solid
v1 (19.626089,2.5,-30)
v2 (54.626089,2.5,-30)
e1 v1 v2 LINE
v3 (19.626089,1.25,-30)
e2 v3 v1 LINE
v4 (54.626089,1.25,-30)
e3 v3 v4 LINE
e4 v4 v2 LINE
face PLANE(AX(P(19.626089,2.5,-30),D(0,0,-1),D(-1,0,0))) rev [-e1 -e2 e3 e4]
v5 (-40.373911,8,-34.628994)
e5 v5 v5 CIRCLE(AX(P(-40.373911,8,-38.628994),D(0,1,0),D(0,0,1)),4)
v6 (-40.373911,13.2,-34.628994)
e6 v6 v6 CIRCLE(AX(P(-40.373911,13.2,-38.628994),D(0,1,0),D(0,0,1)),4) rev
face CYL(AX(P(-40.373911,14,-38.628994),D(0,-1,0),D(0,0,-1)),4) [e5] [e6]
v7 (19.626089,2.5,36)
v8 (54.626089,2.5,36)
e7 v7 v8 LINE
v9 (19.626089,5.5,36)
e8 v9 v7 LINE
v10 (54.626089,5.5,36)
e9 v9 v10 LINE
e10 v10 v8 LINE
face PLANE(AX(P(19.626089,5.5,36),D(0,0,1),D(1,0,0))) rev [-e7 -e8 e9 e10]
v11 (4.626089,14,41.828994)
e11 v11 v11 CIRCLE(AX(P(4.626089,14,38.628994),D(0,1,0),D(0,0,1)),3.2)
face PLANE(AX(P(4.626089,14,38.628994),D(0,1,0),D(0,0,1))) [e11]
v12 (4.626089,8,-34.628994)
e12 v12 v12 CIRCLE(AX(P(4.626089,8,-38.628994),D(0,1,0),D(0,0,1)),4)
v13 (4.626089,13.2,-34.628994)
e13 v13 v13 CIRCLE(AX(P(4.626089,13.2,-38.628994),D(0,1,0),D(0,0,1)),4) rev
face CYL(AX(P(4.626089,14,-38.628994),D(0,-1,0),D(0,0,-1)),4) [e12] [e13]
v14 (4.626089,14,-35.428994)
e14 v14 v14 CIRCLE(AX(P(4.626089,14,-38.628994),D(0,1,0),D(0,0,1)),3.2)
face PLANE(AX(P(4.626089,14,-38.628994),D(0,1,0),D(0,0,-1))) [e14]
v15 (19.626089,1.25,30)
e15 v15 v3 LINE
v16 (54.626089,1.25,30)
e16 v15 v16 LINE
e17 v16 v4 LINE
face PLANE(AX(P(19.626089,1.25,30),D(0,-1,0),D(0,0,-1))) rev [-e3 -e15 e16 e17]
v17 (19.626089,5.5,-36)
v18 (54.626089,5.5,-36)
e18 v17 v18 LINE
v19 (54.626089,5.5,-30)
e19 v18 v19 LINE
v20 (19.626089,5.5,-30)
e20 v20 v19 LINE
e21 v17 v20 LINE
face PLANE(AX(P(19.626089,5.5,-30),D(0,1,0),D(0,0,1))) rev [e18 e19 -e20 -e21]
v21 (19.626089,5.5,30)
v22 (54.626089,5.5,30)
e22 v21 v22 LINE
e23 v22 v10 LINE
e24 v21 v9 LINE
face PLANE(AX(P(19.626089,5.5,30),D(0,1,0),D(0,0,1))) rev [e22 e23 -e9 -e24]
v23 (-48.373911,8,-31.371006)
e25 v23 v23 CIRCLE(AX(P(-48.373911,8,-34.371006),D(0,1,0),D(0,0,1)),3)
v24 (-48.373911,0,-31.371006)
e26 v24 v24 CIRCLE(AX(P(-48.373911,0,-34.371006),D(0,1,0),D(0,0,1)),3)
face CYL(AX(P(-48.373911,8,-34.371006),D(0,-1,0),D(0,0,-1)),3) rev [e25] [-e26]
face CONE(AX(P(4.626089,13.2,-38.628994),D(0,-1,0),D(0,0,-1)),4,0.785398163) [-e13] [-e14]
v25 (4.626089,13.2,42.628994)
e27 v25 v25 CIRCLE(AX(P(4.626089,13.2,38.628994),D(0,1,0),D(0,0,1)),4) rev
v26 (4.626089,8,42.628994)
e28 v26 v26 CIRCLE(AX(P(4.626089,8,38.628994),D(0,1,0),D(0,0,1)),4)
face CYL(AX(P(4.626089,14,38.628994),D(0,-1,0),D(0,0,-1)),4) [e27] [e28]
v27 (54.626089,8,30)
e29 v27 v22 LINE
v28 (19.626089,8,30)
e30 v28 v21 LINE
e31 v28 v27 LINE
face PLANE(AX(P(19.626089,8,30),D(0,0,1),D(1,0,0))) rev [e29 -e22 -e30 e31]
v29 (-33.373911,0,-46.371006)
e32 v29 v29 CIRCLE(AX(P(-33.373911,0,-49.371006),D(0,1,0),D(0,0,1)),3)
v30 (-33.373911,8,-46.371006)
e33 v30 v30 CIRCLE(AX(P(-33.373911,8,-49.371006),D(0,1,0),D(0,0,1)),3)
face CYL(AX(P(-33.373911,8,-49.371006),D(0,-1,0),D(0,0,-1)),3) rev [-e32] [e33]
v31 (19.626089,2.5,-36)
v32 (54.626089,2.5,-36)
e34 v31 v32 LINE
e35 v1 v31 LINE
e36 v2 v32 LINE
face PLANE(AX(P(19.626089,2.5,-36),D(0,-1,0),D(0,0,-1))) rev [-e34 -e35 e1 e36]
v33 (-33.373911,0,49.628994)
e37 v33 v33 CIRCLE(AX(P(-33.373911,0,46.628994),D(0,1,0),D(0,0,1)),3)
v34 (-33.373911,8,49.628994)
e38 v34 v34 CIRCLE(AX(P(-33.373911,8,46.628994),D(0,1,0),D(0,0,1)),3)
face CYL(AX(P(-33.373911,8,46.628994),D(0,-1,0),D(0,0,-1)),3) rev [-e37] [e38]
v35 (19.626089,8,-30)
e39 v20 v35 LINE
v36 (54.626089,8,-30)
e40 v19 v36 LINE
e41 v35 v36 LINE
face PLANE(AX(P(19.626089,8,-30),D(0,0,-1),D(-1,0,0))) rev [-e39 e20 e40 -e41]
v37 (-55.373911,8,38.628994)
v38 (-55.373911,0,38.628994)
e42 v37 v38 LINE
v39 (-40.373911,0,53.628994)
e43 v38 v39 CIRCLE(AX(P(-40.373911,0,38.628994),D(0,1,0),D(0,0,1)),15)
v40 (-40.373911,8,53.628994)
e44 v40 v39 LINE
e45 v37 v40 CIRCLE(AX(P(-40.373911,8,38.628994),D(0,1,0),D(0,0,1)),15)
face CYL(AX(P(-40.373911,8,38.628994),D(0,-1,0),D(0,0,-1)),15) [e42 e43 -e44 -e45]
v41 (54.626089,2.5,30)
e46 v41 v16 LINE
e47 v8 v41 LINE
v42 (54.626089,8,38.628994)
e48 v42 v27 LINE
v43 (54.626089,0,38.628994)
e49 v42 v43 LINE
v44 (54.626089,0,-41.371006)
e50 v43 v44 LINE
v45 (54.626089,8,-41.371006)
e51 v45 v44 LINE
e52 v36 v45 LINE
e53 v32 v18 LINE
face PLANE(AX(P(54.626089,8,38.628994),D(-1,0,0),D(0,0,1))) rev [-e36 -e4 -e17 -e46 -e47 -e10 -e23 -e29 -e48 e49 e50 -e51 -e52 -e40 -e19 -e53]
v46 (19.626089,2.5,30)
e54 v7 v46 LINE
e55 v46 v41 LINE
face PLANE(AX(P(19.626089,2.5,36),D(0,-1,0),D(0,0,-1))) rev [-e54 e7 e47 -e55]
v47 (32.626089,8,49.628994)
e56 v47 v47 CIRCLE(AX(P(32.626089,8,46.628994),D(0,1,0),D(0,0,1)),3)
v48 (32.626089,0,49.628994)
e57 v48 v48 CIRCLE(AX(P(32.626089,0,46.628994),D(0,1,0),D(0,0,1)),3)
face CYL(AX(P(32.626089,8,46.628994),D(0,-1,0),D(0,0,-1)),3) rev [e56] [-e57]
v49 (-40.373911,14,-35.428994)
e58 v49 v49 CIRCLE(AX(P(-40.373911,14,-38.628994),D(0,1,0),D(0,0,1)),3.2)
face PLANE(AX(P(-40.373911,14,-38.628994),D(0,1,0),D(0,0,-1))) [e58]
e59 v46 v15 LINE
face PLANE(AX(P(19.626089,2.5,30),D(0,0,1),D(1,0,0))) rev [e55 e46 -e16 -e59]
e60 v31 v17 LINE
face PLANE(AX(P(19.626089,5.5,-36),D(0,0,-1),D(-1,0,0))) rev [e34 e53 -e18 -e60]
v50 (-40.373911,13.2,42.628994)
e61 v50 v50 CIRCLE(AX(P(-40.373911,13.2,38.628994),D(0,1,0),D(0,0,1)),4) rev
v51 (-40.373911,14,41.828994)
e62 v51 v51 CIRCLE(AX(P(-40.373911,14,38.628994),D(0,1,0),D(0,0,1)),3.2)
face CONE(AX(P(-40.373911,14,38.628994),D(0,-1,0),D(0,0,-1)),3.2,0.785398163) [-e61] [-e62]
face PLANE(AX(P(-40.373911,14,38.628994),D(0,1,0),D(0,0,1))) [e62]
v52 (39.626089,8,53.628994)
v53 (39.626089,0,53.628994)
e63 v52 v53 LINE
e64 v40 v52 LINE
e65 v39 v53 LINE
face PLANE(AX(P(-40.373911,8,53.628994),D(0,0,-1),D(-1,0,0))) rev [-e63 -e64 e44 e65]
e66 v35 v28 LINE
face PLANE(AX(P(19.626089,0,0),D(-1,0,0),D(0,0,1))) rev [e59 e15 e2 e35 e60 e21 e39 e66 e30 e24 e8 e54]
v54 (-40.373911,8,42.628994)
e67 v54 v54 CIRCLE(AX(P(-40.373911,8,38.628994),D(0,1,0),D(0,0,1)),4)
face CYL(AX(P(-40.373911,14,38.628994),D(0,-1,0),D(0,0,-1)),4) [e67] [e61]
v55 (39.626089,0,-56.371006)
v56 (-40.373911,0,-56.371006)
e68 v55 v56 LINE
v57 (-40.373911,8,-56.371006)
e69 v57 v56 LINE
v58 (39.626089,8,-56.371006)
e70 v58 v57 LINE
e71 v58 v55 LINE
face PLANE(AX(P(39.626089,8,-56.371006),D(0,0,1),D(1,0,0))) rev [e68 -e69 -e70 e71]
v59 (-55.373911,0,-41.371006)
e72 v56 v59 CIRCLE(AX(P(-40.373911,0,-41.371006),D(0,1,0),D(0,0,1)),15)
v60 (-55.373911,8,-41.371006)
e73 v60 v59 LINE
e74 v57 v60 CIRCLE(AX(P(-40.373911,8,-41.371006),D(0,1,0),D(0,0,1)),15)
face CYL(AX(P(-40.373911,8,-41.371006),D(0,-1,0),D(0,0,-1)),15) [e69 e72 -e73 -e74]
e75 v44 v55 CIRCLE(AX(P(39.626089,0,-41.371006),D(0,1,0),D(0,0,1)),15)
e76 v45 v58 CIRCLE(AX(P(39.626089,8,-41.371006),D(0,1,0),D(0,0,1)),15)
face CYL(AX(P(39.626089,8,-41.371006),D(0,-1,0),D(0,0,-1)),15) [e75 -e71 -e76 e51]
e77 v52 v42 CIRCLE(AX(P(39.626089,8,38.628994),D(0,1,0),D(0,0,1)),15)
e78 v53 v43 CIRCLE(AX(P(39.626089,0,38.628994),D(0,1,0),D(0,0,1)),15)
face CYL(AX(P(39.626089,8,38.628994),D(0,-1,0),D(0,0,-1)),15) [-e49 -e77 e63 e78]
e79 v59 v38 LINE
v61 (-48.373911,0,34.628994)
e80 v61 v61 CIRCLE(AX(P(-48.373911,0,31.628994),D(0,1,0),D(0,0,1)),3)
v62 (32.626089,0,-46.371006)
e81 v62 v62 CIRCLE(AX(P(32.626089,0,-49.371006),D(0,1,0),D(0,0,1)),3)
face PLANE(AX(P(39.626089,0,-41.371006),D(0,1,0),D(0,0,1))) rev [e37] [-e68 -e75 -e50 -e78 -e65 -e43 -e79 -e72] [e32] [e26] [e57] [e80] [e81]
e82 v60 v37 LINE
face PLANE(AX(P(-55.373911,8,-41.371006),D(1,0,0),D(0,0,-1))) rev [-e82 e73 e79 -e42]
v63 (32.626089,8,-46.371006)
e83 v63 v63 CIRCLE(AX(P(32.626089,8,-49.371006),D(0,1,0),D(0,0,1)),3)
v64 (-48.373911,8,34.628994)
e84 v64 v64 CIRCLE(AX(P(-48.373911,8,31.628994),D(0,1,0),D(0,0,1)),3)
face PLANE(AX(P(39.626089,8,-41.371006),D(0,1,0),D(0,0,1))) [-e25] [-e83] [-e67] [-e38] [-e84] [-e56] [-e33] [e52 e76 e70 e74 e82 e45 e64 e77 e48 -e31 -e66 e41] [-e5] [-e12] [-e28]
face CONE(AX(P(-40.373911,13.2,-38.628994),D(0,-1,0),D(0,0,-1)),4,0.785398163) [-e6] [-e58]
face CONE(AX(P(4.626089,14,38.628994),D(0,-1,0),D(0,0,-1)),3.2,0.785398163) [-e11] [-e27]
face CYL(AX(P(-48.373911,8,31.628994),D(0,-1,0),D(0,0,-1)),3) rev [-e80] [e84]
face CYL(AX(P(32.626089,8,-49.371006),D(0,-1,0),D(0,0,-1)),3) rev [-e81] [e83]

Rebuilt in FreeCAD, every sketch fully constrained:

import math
import FreeCAD as App
import Part
import Sketcher
from FreeCAD import Vector
Q = App.Units.Quantity


def edges_at(feature, points):
    """Names of the edges that pass closest to the given points."""
    edges = feature.Shape.Edges
    near = lambda p: min(range(len(edges)), key=lambda i: edges[i].distToShape(Part.Vertex(*p))[0])
    return sorted({f"Edge{near(p) + 1}" for p in points})

doc = App.newDocument("Part")
params = doc.addObject("Spreadsheet::Sheet", "Params")
for row, (alias, value) in enumerate([
    ("sketch1_diameter", "6 mm"),
    ("sketch1_radius", "15 mm"),
    ("sketch1_width", "80 mm"),
    ("pad1_length", "8 mm"),
    ("sketch2_width", "3 mm"),
    ("sketch2_height", "6 mm"),
    ("sketch2_height2", "60 mm"),
    ("sketch2_width2", "2.5 mm"),
    ("sketch2_width3", "1.25 mm"),
    ("pocket1_length", "35 mm"),
    ("sketch3_diameter", "8 mm"),
    ("pad2_length", "6 mm"),
    ("chamfer_size", "0.8 mm"),
    ("chamfer2_size", "0.8 mm"),
], start=1):
    params.set(f"A{row}", alias)
    params.set(f"B{row}", "=" + value)
    params.setAlias(f"B{row}", alias)

body = doc.addObject("PartDesign::Body", "Body")

# Sketch on XZ plane
sketch1 = body.newObject("Sketcher::SketchObject", "Sketch")
sketch1.AttachmentSupport = (doc.getObject("XZ_Plane"), [""])
sketch1.MapMode = "FlatFace"
sketch1.addGeometry([
    Part.LineSegment(Vector(39.6, -56.4, 0), Vector(-40.4, -56.4, 0)),  # 0
    Part.ArcOfCircle(Part.Circle(Vector(-40.4, -41.4, 0), Vector(0, 0, 1), 15), math.radians(-180), math.radians(-90)),  # 1
    Part.LineSegment(Vector(-55.4, -41.4, 0), Vector(-55.4, 38.6, 0)),  # 2
    Part.ArcOfCircle(Part.Circle(Vector(-40.4, 38.6, 0), Vector(0, 0, 1), 15), math.radians(90), math.radians(180)),  # 3
    Part.LineSegment(Vector(-40.4, 53.6, 0), Vector(39.6, 53.6, 0)),  # 4
    Part.ArcOfCircle(Part.Circle(Vector(39.6, 38.6, 0), Vector(0, 0, 1), 15), math.radians(0), math.radians(90)),  # 5
    Part.LineSegment(Vector(54.6, 38.6, 0), Vector(54.6, -41.4, 0)),  # 6
    Part.ArcOfCircle(Part.Circle(Vector(39.6, -41.4, 0), Vector(0, 0, 1), 15), math.radians(-90), math.radians(0)),  # 7
    Part.Circle(Vector(-33.4, 46.6, 0), Vector(0, 0, 1), 3),  # 8
    Part.Circle(Vector(-48.4, 31.6, 0), Vector(0, 0, 1), 3),  # 9
    Part.Circle(Vector(32.6, 46.6, 0), Vector(0, 0, 1), 3),  # 10
    Part.Circle(Vector(-48.4, -34.4, 0), Vector(0, 0, 1), 3),  # 11
    Part.Circle(Vector(-33.4, -49.4, 0), Vector(0, 0, 1), 3),  # 12
    Part.Circle(Vector(32.6, -49.4, 0), Vector(0, 0, 1), 3),  # 13
], False)
sketch1.addConstraint([
    Sketcher.Constraint("Tangent", 0, 2, 1, 2),
    Sketcher.Constraint("Tangent", 1, 1, 2, 1),
    Sketcher.Constraint("Tangent", 2, 2, 3, 2),
    Sketcher.Constraint("Tangent", 3, 1, 4, 1),
    Sketcher.Constraint("Tangent", 4, 2, 5, 2),
    Sketcher.Constraint("Tangent", 5, 1, 6, 1),
    Sketcher.Constraint("Tangent", 6, 2, 7, 2),
    Sketcher.Constraint("Tangent", 7, 1, 0, 1),
    Sketcher.Constraint("Horizontal", 0),
    Sketcher.Constraint("Vertical", 2),
    Sketcher.Constraint("Horizontal", 4),
    Sketcher.Constraint("Vertical", 6),
    Sketcher.Constraint("Equal", 1, 3),
    Sketcher.Constraint("Equal", 3, 5),
    Sketcher.Constraint("Equal", 5, 7),
    Sketcher.Constraint("Equal", 8, 9),
    Sketcher.Constraint("Equal", 9, 10),
    Sketcher.Constraint("Equal", 10, 11),
    Sketcher.Constraint("Equal", 11, 12),
    Sketcher.Constraint("Equal", 12, 13),
    Sketcher.Constraint("Horizontal", 8, 3, 10, 3),
    Sketcher.Constraint("Horizontal", 12, 3, 13, 3),
    Sketcher.Constraint("Vertical", 9, 3, 11, 3),
    Sketcher.Constraint("Vertical", 8, 3, 12, 3),
    Sketcher.Constraint("Vertical", 10, 3, 13, 3),
    Sketcher.Constraint("Equal", 4, 2),
    Sketcher.Constraint("Diameter", 8, Q("6 mm")),
    Sketcher.Constraint("Radius", 1, Q("15 mm")),
    Sketcher.Constraint("DistanceX", 0, 2, 0, 1, Q("80 mm")),
    Sketcher.Constraint("DistanceX", 3, 3, 8, 3, Q("7 mm")),
    Sketcher.Constraint("DistanceY", 3, 3, 8, 3, Q("8 mm")),
    Sketcher.Constraint("DistanceX", 9, 3, 3, 3, Q("8 mm")),
    Sketcher.Constraint("DistanceY", 9, 3, 3, 3, Q("7 mm")),
    Sketcher.Constraint("DistanceX", 10, 3, 5, 3, Q("7 mm")),
    Sketcher.Constraint("DistanceY", 1, 3, 11, 3, Q("7 mm")),
    Sketcher.Constraint("DistanceY", 12, 3, 1, 3, Q("8 mm")),
    Sketcher.Constraint("DistanceX", 1, 3, -1, 1, Q("40.373911 mm")),
    Sketcher.Constraint("DistanceY", 1, 3, -1, 1, Q("41.371006 mm")),
])
sketch1.setExpression("Constraints[26]", "Params.sketch1_diameter")
sketch1.setExpression("Constraints[27]", "Params.sketch1_radius")
sketch1.setExpression("Constraints[28]", "Params.sketch1_width")
pad1 = body.newObject("PartDesign::Pad", "Pad")
pad1.Profile = sketch1
pad1.setExpression("Length", "Params.pad1_length")
pad1.Reversed = True

# Sketch on YZ plane
sketch2 = body.newObject("Sketcher::SketchObject", "Sketch001")
sketch2.AttachmentSupport = (doc.getObject("YZ_Plane"), [""])
sketch2.MapMode = "FlatFace"
sketch2.AttachmentOffset = App.Placement(Vector(0, 0, 54.626089), App.Rotation())
sketch2.addGeometry([
    Part.LineSegment(Vector(8, 30, 0), Vector(5.5, 30, 0)),  # 0
    Part.LineSegment(Vector(5.5, 30, 0), Vector(5.5, 36, 0)),  # 1
    Part.LineSegment(Vector(5.5, 36, 0), Vector(2.5, 36, 0)),  # 2
    Part.LineSegment(Vector(2.5, 36, 0), Vector(2.5, 30, 0)),  # 3
    Part.LineSegment(Vector(2.5, 30, 0), Vector(1.2, 30, 0)),  # 4
    Part.LineSegment(Vector(1.2, 30, 0), Vector(1.2, -30, 0)),  # 5
    Part.LineSegment(Vector(1.2, -30, 0), Vector(2.5, -30, 0)),  # 6
    Part.LineSegment(Vector(2.5, -30, 0), Vector(2.5, -36, 0)),  # 7
    Part.LineSegment(Vector(2.5, -36, 0), Vector(5.5, -36, 0)),  # 8
    Part.LineSegment(Vector(5.5, -36, 0), Vector(5.5, -30, 0)),  # 9
    Part.LineSegment(Vector(5.5, -30, 0), Vector(8, -30, 0)),  # 10
    Part.LineSegment(Vector(8, -30, 0), Vector(8, 30, 0)),  # 11
], False)
sketch2.addConstraint([
    Sketcher.Constraint("Coincident", 0, 2, 1, 1),
    Sketcher.Constraint("Coincident", 1, 2, 2, 1),
    Sketcher.Constraint("Coincident", 2, 2, 3, 1),
    Sketcher.Constraint("Coincident", 3, 2, 4, 1),
    Sketcher.Constraint("Coincident", 4, 2, 5, 1),
    Sketcher.Constraint("Coincident", 5, 2, 6, 1),
    Sketcher.Constraint("Coincident", 6, 2, 7, 1),
    Sketcher.Constraint("Coincident", 7, 2, 8, 1),
    Sketcher.Constraint("Coincident", 8, 2, 9, 1),
    Sketcher.Constraint("Coincident", 9, 2, 10, 1),
    Sketcher.Constraint("Coincident", 10, 2, 11, 1),
    Sketcher.Constraint("Coincident", 11, 2, 0, 1),
    Sketcher.Constraint("Horizontal", 0),
    Sketcher.Constraint("Vertical", 1),
    Sketcher.Constraint("Horizontal", 2),
    Sketcher.Constraint("Vertical", 3),
    Sketcher.Constraint("Horizontal", 4),
    Sketcher.Constraint("Vertical", 5),
    Sketcher.Constraint("Horizontal", 6),
    Sketcher.Constraint("Vertical", 7),
    Sketcher.Constraint("Horizontal", 8),
    Sketcher.Constraint("Vertical", 9),
    Sketcher.Constraint("Horizontal", 10),
    Sketcher.Constraint("Vertical", 11),
    Sketcher.Constraint("Symmetric", 3, 2, 6, 2, -1),
    Sketcher.Constraint("Symmetric", 1, 2, 8, 2, -1),
    Sketcher.Constraint("Horizontal", 0, 2, 3, 2),
    Sketcher.Constraint("Horizontal", 6, 2, 9, 2),
    Sketcher.Constraint("DistanceX", 2, 2, 2, 1, Q("3 mm")),
    Sketcher.Constraint("DistanceY", 1, 1, 1, 2, Q("6 mm")),
    Sketcher.Constraint("DistanceY", 5, 2, 5, 1, Q("60 mm")),
    Sketcher.Constraint("DistanceX", 0, 2, 0, 1, Q("2.5 mm")),
    Sketcher.Constraint("DistanceX", -1, 1, 10, 2, Q("8 mm")),
    Sketcher.Constraint("DistanceX", 4, 2, 4, 1, Q("1.25 mm")),
])
sketch2.setExpression("Constraints[28]", "Params.sketch2_width")
sketch2.setExpression("Constraints[29]", "Params.sketch2_height")
sketch2.setExpression("Constraints[30]", "Params.sketch2_height2")
sketch2.setExpression("Constraints[31]", "Params.sketch2_width2")
sketch2.setExpression("Constraints[33]", "Params.sketch2_width3")
pocket1 = body.newObject("PartDesign::Pocket", "Pocket")
pocket1.Profile = sketch2
pocket1.setExpression("Length", "Params.pocket1_length")

# Sketch on XZ plane
sketch3 = body.newObject("Sketcher::SketchObject", "Sketch002")
sketch3.AttachmentSupport = (doc.getObject("XZ_Plane"), [""])
sketch3.MapMode = "FlatFace"
sketch3.AttachmentOffset = App.Placement(Vector(0, 0, -8), App.Rotation())
sketch3.addGeometry([
    Part.Circle(Vector(4.6, 38.6, 0), Vector(0, 0, 1), 4),
    Part.Circle(Vector(-40.4, 38.6, 0), Vector(0, 0, 1), 4),
], False)
sketch3.addConstraint([
    Sketcher.Constraint("Equal", 0, 1),
    Sketcher.Constraint("Horizontal", 0, 3, 1, 3),
    Sketcher.Constraint("Diameter", 0, Q("8 mm")),
    Sketcher.Constraint("DistanceX", 1, 3, 0, 3, Q("45 mm")),
    Sketcher.Constraint("DistanceX", -1, 1, 0, 3, Q("4.626089 mm")),
    Sketcher.Constraint("DistanceY", -1, 1, 0, 3, Q("38.628994 mm")),
])
sketch3.setExpression("Constraints[2]", "Params.sketch3_diameter")
pad2 = body.newObject("PartDesign::Pad", "Pad001")
pad2.Profile = sketch3
pad2.setExpression("Length", "Params.pad2_length")
pad2.Reversed = True
doc.recompute()

chamfer = body.newObject("PartDesign::Chamfer", "Chamfer")
chamfer.Base = (pad2, edges_at(pad2, [(4.626, 14, 34.629), (-40.374, 14, 34.629)]))
chamfer.setExpression("Size", "Params.chamfer_size")
doc.recompute()

mirrored = body.newObject("PartDesign::Mirrored", "Mirrored")
mirrored.Originals = [pad2]
mirrored.MirrorPlane = (doc.getObject("XY_Plane"), [""])
body.Tip = mirrored
doc.recompute()

chamfer2 = body.newObject("PartDesign::Chamfer", "Chamfer001")
chamfer2.Base = (mirrored, edges_at(mirrored, [(4.626, 14, -34.629), (-40.374, 14, -34.629)]))
chamfer2.setExpression("Size", "Params.chamfer2_size")

doc.recompute()
